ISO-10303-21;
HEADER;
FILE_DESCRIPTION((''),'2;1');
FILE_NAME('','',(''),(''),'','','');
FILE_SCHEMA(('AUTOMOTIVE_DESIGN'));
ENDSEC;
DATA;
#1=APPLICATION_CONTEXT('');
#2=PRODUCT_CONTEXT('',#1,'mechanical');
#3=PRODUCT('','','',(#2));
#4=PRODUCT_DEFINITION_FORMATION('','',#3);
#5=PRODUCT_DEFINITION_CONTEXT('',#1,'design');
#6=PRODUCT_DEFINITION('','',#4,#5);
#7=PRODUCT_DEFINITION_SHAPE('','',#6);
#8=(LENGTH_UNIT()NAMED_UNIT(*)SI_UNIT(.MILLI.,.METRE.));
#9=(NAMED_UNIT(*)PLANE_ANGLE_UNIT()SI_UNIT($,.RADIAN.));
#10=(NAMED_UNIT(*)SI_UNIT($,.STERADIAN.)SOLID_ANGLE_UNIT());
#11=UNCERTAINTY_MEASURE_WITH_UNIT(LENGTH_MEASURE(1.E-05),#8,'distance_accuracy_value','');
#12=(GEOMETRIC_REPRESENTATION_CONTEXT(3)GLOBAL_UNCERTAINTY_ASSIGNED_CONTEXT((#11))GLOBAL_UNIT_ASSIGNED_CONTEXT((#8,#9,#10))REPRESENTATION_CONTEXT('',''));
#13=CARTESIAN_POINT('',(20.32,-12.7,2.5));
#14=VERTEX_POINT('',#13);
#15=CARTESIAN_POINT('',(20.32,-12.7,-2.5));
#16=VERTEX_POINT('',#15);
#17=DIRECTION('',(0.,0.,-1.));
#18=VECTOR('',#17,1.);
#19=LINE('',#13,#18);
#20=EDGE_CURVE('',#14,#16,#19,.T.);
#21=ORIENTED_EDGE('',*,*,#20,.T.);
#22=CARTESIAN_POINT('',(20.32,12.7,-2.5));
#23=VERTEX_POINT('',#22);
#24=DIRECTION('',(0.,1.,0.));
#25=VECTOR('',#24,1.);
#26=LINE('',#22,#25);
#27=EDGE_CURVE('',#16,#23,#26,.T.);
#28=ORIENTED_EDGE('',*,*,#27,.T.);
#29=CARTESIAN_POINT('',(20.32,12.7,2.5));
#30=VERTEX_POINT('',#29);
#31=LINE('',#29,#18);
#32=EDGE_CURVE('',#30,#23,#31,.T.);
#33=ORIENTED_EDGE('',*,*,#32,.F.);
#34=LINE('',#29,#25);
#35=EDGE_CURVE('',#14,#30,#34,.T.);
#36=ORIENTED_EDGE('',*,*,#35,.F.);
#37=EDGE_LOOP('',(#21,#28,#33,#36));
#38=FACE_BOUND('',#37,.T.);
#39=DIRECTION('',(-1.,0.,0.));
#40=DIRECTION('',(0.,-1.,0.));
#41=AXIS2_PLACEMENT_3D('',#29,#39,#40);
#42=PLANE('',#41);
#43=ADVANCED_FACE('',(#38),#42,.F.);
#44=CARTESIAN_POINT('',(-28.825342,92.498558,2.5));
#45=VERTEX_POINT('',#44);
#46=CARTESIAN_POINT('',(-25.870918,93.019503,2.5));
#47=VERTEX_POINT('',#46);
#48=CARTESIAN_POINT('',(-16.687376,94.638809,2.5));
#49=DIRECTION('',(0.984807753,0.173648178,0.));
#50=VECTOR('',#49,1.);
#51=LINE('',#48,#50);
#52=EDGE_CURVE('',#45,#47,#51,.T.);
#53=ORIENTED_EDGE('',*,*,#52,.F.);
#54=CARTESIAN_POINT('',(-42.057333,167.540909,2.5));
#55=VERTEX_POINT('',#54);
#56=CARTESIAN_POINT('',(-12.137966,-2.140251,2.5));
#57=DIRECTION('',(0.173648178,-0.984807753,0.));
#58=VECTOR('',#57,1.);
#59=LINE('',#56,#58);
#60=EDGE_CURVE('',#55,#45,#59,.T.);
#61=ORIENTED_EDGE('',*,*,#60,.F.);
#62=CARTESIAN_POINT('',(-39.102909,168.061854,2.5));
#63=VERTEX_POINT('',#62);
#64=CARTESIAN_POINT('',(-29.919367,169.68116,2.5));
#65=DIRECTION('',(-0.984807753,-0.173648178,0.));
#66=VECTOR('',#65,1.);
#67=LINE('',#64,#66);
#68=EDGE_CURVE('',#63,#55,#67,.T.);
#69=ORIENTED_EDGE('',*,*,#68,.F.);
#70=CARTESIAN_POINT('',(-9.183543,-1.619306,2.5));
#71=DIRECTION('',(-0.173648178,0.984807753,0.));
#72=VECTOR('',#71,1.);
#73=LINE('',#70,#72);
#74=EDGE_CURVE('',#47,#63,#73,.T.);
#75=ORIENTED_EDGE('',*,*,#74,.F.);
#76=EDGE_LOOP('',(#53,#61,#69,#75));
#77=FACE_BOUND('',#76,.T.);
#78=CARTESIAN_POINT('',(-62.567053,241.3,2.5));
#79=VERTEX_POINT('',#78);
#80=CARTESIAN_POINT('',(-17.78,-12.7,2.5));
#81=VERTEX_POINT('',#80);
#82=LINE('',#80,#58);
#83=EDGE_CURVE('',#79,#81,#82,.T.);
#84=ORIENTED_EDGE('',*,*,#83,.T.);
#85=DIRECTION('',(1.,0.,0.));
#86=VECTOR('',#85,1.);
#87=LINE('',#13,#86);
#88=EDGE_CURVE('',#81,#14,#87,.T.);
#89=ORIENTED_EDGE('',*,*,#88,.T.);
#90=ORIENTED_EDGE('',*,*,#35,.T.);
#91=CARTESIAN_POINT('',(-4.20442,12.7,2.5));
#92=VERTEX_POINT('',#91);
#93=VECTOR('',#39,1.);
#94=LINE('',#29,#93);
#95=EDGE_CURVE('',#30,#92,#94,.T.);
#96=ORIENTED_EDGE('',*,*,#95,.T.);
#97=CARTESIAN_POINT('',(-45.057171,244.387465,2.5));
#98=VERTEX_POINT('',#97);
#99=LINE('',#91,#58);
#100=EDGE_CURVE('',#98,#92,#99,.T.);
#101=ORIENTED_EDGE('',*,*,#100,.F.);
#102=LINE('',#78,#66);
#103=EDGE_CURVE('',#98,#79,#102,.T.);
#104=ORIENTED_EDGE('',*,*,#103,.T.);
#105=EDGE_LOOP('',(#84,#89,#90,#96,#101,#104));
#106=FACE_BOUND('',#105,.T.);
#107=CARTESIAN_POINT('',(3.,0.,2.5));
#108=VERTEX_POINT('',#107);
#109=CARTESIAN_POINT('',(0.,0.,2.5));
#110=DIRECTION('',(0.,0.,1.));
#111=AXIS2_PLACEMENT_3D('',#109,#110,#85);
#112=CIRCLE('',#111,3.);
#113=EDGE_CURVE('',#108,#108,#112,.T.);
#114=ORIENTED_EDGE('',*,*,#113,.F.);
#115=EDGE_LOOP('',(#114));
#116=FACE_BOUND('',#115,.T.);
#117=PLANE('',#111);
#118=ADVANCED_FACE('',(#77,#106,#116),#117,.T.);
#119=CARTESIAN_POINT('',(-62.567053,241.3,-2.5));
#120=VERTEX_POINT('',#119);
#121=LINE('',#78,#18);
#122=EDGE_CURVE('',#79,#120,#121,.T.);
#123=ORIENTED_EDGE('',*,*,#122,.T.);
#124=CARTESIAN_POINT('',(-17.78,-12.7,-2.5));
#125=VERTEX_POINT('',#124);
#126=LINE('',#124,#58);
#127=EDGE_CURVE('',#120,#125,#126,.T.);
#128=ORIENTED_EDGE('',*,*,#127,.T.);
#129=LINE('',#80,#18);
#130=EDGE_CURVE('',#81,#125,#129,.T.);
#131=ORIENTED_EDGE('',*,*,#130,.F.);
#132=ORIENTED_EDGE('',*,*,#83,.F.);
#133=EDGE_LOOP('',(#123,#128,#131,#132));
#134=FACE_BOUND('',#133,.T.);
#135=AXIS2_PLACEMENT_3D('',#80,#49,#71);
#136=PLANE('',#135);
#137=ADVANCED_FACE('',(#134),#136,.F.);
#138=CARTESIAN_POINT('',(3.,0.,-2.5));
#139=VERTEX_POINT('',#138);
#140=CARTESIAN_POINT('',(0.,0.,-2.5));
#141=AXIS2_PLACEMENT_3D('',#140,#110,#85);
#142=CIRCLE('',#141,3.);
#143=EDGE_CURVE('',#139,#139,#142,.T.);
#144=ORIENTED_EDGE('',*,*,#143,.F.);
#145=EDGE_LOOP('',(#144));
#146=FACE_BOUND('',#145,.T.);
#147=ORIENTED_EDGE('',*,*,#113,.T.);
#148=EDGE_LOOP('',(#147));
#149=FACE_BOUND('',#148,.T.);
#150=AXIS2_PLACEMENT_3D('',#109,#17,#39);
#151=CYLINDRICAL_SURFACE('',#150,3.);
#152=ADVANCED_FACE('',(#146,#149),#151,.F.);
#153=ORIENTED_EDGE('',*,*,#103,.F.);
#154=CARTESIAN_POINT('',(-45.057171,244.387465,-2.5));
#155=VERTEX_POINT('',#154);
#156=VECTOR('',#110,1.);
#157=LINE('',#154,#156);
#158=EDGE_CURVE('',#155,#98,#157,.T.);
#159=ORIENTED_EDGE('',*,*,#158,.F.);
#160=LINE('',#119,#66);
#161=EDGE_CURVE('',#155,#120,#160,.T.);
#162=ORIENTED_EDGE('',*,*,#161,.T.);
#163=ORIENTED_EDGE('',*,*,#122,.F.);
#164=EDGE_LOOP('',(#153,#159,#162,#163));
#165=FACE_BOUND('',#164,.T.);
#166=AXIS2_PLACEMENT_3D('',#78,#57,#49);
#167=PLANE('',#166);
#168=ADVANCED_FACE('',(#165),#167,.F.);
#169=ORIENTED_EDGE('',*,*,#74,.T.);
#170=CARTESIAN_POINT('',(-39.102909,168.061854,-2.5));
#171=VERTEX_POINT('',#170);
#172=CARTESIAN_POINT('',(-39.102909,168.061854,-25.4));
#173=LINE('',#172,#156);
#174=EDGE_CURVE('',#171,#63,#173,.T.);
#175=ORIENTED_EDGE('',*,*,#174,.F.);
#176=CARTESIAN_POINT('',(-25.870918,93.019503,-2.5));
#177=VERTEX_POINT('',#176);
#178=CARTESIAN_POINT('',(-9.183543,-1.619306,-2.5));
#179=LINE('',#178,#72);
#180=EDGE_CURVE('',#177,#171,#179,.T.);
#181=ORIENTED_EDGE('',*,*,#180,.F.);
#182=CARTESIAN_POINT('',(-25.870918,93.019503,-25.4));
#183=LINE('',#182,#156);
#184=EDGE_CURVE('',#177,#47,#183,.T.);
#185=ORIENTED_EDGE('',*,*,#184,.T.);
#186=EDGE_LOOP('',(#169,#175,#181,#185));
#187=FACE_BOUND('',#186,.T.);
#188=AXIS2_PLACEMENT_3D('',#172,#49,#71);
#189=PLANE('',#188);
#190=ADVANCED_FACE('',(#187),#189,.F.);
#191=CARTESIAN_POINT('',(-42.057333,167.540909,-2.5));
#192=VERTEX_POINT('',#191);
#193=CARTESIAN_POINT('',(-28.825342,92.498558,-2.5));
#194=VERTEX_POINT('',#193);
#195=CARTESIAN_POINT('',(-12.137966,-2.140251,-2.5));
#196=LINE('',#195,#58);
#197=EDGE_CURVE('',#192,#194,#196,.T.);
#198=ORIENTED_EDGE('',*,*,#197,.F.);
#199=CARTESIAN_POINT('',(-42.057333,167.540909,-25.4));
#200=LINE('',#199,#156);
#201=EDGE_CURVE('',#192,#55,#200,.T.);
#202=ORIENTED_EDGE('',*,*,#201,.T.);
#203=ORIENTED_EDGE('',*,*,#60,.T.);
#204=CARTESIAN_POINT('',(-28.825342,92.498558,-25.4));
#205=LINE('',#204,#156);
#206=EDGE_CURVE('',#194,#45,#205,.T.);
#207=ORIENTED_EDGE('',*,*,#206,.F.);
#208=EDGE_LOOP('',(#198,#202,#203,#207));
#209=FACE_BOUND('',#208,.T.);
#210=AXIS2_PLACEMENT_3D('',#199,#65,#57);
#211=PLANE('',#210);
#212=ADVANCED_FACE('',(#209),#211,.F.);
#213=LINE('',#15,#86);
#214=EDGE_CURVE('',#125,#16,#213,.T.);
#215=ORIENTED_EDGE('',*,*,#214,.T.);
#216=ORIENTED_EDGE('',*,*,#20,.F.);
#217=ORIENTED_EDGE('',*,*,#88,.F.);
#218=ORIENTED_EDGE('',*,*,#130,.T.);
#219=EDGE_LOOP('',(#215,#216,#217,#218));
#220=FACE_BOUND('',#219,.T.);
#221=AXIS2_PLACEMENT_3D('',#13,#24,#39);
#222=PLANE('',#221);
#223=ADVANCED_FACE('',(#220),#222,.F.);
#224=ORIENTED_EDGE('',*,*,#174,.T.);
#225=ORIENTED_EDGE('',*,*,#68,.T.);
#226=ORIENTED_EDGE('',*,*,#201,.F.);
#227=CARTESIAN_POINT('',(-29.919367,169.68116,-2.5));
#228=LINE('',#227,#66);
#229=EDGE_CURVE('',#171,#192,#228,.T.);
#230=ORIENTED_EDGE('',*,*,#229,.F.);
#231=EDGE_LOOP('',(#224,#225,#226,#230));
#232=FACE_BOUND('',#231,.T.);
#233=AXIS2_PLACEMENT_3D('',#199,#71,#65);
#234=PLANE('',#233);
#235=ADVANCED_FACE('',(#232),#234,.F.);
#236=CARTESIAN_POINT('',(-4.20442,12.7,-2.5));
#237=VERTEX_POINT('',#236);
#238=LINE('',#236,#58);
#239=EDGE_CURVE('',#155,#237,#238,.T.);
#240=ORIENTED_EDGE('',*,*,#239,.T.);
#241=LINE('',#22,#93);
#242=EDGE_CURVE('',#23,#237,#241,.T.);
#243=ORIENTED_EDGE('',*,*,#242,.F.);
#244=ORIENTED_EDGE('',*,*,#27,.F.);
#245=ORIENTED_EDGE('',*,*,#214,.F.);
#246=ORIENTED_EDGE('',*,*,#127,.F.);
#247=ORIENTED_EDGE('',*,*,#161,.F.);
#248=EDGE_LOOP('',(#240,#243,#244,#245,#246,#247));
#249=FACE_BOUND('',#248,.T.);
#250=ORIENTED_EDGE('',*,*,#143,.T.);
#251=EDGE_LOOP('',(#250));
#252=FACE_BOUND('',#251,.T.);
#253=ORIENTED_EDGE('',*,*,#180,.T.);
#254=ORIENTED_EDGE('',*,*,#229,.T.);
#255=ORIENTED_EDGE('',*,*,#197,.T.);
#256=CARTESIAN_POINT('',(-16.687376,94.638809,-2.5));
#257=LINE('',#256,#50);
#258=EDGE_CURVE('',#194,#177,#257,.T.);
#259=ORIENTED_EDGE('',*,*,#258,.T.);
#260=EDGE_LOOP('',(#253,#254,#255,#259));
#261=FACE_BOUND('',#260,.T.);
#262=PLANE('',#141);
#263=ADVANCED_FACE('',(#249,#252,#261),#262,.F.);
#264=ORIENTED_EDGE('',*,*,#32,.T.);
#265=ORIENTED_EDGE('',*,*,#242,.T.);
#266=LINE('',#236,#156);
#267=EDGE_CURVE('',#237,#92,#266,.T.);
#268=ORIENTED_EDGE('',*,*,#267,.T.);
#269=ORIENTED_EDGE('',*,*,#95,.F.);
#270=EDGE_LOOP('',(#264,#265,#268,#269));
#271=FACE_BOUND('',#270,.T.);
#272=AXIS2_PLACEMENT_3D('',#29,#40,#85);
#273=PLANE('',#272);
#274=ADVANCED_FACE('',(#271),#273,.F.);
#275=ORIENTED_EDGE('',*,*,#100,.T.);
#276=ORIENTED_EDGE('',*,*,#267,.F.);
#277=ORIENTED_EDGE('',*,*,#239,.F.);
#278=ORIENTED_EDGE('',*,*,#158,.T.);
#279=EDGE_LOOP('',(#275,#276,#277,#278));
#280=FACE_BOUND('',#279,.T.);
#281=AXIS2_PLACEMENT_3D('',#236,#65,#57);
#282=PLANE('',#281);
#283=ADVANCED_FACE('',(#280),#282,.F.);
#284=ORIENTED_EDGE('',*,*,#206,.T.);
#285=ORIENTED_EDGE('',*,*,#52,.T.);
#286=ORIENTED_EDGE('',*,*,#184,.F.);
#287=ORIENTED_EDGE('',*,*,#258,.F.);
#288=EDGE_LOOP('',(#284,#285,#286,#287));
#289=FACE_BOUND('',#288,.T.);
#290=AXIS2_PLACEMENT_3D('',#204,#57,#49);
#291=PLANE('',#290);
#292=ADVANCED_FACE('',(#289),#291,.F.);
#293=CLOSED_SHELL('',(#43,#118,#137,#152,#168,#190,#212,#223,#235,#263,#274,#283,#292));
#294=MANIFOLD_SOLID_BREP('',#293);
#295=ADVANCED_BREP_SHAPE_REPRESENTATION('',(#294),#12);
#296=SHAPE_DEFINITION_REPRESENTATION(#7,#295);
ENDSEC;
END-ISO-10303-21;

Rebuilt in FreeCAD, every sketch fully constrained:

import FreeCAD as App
import Part
import Sketcher
from FreeCAD import Vector
Q = App.Units.Quantity


def add_polygon(sketch, points):
    """Adds a closed chain of lines whose ends are joined by coincident constraints."""
    first, n = sketch.GeometryCount, len(points)
    for a, b in zip(points, points[1:] + points[:1]):
        sketch.addGeometry(Part.LineSegment(App.Vector(*a, 0), App.Vector(*b, 0)), False)
    for i in range(n):
        sketch.addConstraint(Sketcher.Constraint("Coincident", first + i, 2, first + (i + 1) % n, 1))

doc = App.newDocument("Part")
params = doc.addObject("Spreadsheet::Sheet", "Params")
for row, (alias, value) in enumerate([
    ("sketch1_height", "1 in"),
    ("sketch1_length", "1 in"),
    ("sketch1_width", "1.5 in"),
    ("pad1_length", "5 mm"),
    ("sketch2_length", "0.3 in"),
    ("sketch3_length", "3 in"),
    ("pocket2_length", "2 in"),
], start=1):
    params.set(f"A{row}", alias)
    params.set(f"B{row}", "=" + value)
    params.setAlias(f"B{row}", alias)

body = doc.addObject("PartDesign::Body", "Body")

# Sketch on XY plane
sketch1 = body.newObject("Sketcher::SketchObject", "Sketch")
sketch1.AttachmentSupport = (doc.getObject("XY_Plane"), [""])
sketch1.MapMode = "FlatFace"
add_polygon(sketch1, [(20.32, -12.7), (20.32, 12.7), (3.533131, 12.7), (-37.552936, 245.710664), (-62.567053, 241.3), (-17.78, -12.7)])  # lines 0-5
sketch1.addGeometry(Part.Circle(Vector(0, 0, 0), Vector(0, 0, 1), 3), False)  # 6
sketch1.addConstraint([
    Sketcher.Constraint("Vertical", 0),
    Sketcher.Constraint("Horizontal", 1),
    Sketcher.Constraint("Horizontal", 5),
    Sketcher.Constraint("Coincident", 6, 3, -1, 1),
    Sketcher.Constraint("Perpendicular", 2, 3),
    Sketcher.Constraint("Perpendicular", 3, 4),
    Sketcher.Constraint("DistanceY", 0, 1, 0, 2, Q("1 in")),
    Sketcher.Constraint("Distance", 3, Q("1 in")),
    Sketcher.Constraint("DistanceX", 5, 1, 5, 2, Q("1.5 in")),
    Sketcher.Constraint("Angle", 2, Q("100 deg")),
    Sketcher.Constraint("DistanceY", 1, 2, 3, 2, Q("9 in")),
    Sketcher.Constraint("DistanceX", -1, 1, 0, 2, Q("0.8 in")),
    Sketcher.Constraint("DistanceY", -1, 1, 0, 2, Q("0.5 in")),
    Sketcher.Constraint("Diameter", 6, Q("6 mm")),
])
sketch1.setExpression("Constraints[12]", "Params.sketch1_height")
sketch1.setExpression("Constraints[13]", "Params.sketch1_length")
sketch1.setExpression("Constraints[14]", "Params.sketch1_width")
pad1 = body.newObject("PartDesign::Pad", "Pad")
pad1.Profile = sketch1
pad1.setExpression("Length", "Params.pad1_length")
pad1.Midplane = True

# Sketch on XY plane
sketch2 = body.newObject("Sketcher::SketchObject", "Sketch001")
sketch2.AttachmentSupport = (doc.getObject("XY_Plane"), [""])
sketch2.MapMode = "FlatFace"
sketch2.AttachmentOffset = App.Placement(Vector(0, 0, 2.5), App.Rotation())
add_polygon(sketch2, [(3.533131, 12.7), (-37.552936, 245.710664), (-45.057171, 244.387465), (-4.20442, 12.7)])  # lines 0-3
sketch2.addConstraint([
    Sketcher.Constraint("Horizontal", 3),
    Sketcher.Constraint("Perpendicular", 0, 1),
    Sketcher.Constraint("Perpendicular", 1, 2),
    Sketcher.Constraint("Angle", 0, Q("100 deg")),
    Sketcher.Constraint("Distance", 1, Q("0.3 in")),
    Sketcher.Constraint("DistanceY", -1, 1, 2, 2, Q("0.5 in")),
    Sketcher.Constraint("DistanceX", 1, 2, 3, 2, Q("48.590302 mm")),
    Sketcher.Constraint("DistanceX", 1, 2, -1, 1, Q("45.057171 mm")),
])
sketch2.setExpression("Constraints[8]", "Params.sketch2_length")
pocket1 = body.newObject("PartDesign::Pocket", "Pocket")
pocket1.Profile = sketch2
pocket1.Type = "ThroughAll"

# Sketch on XY plane
sketch3 = body.newObject("Sketcher::SketchObject", "Sketch002")
sketch3.AttachmentSupport = (doc.getObject("XY_Plane"), [""])
sketch3.MapMode = "FlatFace"
add_polygon(sketch3, [(-39.102909, 168.061854), (-42.057333, 167.540909), (-28.825342, 92.498558), (-25.870918, 93.019503)])  # lines 0-3
sketch3.addConstraint([
    Sketcher.Constraint("Perpendicular", 0, 1),
    Sketcher.Constraint("Perpendicular", 1, 2),
    Sketcher.Constraint("Perpendicular", 2, 3),
    Sketcher.Constraint("Distance", 1, Q("3 in")),
    Sketcher.Constraint("Angle", 0, Q("-170 deg")),
    Sketcher.Constraint("Distance", 0, Q("3 mm")),
    Sketcher.Constraint("DistanceY", -1, 1, 0, 2, Q("167.540909 mm")),
    Sketcher.Constraint("DistanceX", 1, 2, -1, 1, Q("28.825342 mm")),
])
sketch3.setExpression("Constraints[7]", "Params.sketch3_length")
pocket2 = body.newObject("PartDesign::Pocket", "Pocket001")
pocket2.Profile = sketch3
pocket2.setExpression("Length", "Params.pocket2_length")
pocket2.Midplane = True

doc.recompute()
